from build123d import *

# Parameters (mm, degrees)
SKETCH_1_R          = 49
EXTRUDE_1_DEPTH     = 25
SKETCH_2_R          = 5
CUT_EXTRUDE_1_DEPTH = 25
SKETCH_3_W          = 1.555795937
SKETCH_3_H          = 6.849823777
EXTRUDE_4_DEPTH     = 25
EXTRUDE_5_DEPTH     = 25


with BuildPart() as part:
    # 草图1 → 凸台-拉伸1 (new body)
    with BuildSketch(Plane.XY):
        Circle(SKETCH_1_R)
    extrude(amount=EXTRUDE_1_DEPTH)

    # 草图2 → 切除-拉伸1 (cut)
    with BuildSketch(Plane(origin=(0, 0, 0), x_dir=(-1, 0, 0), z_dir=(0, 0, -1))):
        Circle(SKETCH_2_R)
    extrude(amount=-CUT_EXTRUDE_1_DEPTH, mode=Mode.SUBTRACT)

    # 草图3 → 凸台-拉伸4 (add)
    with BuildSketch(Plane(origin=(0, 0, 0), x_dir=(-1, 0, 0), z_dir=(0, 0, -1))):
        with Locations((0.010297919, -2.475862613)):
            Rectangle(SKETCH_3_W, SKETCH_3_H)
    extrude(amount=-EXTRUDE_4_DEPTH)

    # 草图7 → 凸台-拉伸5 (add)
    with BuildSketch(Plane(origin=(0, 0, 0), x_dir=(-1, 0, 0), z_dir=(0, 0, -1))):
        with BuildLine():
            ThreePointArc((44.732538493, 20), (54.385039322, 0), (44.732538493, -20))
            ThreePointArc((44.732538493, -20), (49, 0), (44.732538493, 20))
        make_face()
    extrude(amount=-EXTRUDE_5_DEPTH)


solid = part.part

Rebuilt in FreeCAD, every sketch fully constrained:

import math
import FreeCAD as App
import Part
import Sketcher

V = App.Vector


def add_polygon(sketch, points):
    """Adds a closed chain of lines whose ends are joined by coincident constraints."""
    first, n = sketch.GeometryCount, len(points)
    for a, b in zip(points, points[1:] + points[:1]):
        sketch.addGeometry(Part.LineSegment(App.Vector(*a, 0), App.Vector(*b, 0)), False)
    for i in range(n):
        sketch.addConstraint(Sketcher.Constraint("Coincident", first + i, 2, first + (i + 1) % n, 1))

doc = App.newDocument("Part")
body = doc.addObject("PartDesign::Body", "Body")

sketch1 = doc.addObject("Sketcher::SketchObject", "Sketch")
body.addObject(sketch1)
sketch1.AttachmentSupport = (doc.XY_Plane, [""])
sketch1.MapMode = "FlatFace"
sketch1.addGeometry(Part.Circle(V(0, 0, 0), V(0, 0, 1), 49), False)
sketch1.addConstraint(Sketcher.Constraint("Coincident", 0, 3, -1, 1))
sketch1.addConstraint(Sketcher.Constraint("Diameter", 0, 98.0))
pad1 = doc.addObject("PartDesign::Pad", "Pad")
body.addObject(pad1)
pad1.Profile = sketch1
pad1.Length = 25

sketch2 = doc.addObject("Sketcher::SketchObject", "Sketch001")
body.addObject(sketch2)
sketch2.AttachmentSupport = (doc.XY_Plane, [""])
sketch2.MapMode = "FlatFace"
sketch2.addGeometry(Part.Circle(V(0, 0, 0), V(0, 0, 1), 5), False)
sketch2.addConstraint(Sketcher.Constraint("Coincident", 0, 3, -1, 1))
sketch2.addConstraint(Sketcher.Constraint("Diameter", 0, 10.0))
pocket1 = doc.addObject("PartDesign::Pocket", "Pocket")
body.addObject(pocket1)
pocket1.Profile = sketch2
pocket1.Length = 25
pocket1.Reversed = True

sketch3 = doc.addObject("Sketcher::SketchObject", "Sketch002")
body.addObject(sketch3)
sketch3.AttachmentSupport = (doc.XY_Plane, [""])
sketch3.MapMode = "FlatFace"
add_polygon(sketch3, [(0.7676, 0.949049), (0.7676, -5.900775), (-0.788196, -5.900775), (-0.788196, 0.949049)])
sketch3.addConstraint(Sketcher.Constraint("Vertical", 0))
sketch3.addConstraint(Sketcher.Constraint("Horizontal", 1))
sketch3.addConstraint(Sketcher.Constraint("Vertical", 2))
sketch3.addConstraint(Sketcher.Constraint("Horizontal", 3))
sketch3.addConstraint(Sketcher.Constraint("DistanceX", -1, 1, 0, 2, 0.7676))
sketch3.addConstraint(Sketcher.Constraint("DistanceX", 1, 2, 1, 1, 1.555796))
sketch3.addConstraint(Sketcher.Constraint("DistanceY", 0, 2, 0, 1, 6.849824))
sketch3.addConstraint(Sketcher.Constraint("DistanceY", -1, 1, 2, 2, 0.949049))
pad2 = doc.addObject("PartDesign::Pad", "Pad001")
body.addObject(pad2)
pad2.Profile = sketch3
pad2.Length = 25

sketch4 = doc.addObject("Sketcher::SketchObject", "Sketch003")
body.addObject(sketch4)
sketch4.AttachmentSupport = (doc.XY_Plane, [""])
sketch4.MapMode = "FlatFace"
sketch4.addGeometry(Part.ArcOfCircle(Part.Circle(V(-28.83877, 0, 0), V(0, 0, 1), 25.546269), math.radians(128.473759), math.radians(231.526241)), False)
sketch4.addGeometry(Part.ArcOfCircle(Part.Circle(V(0, 0, 0), V(0, 0, 1), 49), math.radians(155.910494), math.radians(204.089506)), False)
sketch4.addConstraint(Sketcher.Constraint("Coincident", 0, 1, 1, 1))
sketch4.addConstraint(Sketcher.Constraint("Coincident", 1, 2, 0, 2))
sketch4.addConstraint(Sketcher.Constraint("Coincident", 1, 3, -1, 1))
sketch4.addConstraint(Sketcher.Constraint("PointOnObject", 0, 3, -1))
sketch4.addConstraint(Sketcher.Constraint("Radius", 1, 49.0))
sketch4.addConstraint(Sketcher.Constraint("DistanceY", -1, 1, 0, 1, 20.0))
sketch4.addConstraint(Sketcher.Constraint("Radius", 0, 25.546269))
pad3 = doc.addObject("PartDesign::Pad", "Pad002")
body.addObject(pad3)
pad3.Profile = sketch4
pad3.Length = 25

doc.recompute()
